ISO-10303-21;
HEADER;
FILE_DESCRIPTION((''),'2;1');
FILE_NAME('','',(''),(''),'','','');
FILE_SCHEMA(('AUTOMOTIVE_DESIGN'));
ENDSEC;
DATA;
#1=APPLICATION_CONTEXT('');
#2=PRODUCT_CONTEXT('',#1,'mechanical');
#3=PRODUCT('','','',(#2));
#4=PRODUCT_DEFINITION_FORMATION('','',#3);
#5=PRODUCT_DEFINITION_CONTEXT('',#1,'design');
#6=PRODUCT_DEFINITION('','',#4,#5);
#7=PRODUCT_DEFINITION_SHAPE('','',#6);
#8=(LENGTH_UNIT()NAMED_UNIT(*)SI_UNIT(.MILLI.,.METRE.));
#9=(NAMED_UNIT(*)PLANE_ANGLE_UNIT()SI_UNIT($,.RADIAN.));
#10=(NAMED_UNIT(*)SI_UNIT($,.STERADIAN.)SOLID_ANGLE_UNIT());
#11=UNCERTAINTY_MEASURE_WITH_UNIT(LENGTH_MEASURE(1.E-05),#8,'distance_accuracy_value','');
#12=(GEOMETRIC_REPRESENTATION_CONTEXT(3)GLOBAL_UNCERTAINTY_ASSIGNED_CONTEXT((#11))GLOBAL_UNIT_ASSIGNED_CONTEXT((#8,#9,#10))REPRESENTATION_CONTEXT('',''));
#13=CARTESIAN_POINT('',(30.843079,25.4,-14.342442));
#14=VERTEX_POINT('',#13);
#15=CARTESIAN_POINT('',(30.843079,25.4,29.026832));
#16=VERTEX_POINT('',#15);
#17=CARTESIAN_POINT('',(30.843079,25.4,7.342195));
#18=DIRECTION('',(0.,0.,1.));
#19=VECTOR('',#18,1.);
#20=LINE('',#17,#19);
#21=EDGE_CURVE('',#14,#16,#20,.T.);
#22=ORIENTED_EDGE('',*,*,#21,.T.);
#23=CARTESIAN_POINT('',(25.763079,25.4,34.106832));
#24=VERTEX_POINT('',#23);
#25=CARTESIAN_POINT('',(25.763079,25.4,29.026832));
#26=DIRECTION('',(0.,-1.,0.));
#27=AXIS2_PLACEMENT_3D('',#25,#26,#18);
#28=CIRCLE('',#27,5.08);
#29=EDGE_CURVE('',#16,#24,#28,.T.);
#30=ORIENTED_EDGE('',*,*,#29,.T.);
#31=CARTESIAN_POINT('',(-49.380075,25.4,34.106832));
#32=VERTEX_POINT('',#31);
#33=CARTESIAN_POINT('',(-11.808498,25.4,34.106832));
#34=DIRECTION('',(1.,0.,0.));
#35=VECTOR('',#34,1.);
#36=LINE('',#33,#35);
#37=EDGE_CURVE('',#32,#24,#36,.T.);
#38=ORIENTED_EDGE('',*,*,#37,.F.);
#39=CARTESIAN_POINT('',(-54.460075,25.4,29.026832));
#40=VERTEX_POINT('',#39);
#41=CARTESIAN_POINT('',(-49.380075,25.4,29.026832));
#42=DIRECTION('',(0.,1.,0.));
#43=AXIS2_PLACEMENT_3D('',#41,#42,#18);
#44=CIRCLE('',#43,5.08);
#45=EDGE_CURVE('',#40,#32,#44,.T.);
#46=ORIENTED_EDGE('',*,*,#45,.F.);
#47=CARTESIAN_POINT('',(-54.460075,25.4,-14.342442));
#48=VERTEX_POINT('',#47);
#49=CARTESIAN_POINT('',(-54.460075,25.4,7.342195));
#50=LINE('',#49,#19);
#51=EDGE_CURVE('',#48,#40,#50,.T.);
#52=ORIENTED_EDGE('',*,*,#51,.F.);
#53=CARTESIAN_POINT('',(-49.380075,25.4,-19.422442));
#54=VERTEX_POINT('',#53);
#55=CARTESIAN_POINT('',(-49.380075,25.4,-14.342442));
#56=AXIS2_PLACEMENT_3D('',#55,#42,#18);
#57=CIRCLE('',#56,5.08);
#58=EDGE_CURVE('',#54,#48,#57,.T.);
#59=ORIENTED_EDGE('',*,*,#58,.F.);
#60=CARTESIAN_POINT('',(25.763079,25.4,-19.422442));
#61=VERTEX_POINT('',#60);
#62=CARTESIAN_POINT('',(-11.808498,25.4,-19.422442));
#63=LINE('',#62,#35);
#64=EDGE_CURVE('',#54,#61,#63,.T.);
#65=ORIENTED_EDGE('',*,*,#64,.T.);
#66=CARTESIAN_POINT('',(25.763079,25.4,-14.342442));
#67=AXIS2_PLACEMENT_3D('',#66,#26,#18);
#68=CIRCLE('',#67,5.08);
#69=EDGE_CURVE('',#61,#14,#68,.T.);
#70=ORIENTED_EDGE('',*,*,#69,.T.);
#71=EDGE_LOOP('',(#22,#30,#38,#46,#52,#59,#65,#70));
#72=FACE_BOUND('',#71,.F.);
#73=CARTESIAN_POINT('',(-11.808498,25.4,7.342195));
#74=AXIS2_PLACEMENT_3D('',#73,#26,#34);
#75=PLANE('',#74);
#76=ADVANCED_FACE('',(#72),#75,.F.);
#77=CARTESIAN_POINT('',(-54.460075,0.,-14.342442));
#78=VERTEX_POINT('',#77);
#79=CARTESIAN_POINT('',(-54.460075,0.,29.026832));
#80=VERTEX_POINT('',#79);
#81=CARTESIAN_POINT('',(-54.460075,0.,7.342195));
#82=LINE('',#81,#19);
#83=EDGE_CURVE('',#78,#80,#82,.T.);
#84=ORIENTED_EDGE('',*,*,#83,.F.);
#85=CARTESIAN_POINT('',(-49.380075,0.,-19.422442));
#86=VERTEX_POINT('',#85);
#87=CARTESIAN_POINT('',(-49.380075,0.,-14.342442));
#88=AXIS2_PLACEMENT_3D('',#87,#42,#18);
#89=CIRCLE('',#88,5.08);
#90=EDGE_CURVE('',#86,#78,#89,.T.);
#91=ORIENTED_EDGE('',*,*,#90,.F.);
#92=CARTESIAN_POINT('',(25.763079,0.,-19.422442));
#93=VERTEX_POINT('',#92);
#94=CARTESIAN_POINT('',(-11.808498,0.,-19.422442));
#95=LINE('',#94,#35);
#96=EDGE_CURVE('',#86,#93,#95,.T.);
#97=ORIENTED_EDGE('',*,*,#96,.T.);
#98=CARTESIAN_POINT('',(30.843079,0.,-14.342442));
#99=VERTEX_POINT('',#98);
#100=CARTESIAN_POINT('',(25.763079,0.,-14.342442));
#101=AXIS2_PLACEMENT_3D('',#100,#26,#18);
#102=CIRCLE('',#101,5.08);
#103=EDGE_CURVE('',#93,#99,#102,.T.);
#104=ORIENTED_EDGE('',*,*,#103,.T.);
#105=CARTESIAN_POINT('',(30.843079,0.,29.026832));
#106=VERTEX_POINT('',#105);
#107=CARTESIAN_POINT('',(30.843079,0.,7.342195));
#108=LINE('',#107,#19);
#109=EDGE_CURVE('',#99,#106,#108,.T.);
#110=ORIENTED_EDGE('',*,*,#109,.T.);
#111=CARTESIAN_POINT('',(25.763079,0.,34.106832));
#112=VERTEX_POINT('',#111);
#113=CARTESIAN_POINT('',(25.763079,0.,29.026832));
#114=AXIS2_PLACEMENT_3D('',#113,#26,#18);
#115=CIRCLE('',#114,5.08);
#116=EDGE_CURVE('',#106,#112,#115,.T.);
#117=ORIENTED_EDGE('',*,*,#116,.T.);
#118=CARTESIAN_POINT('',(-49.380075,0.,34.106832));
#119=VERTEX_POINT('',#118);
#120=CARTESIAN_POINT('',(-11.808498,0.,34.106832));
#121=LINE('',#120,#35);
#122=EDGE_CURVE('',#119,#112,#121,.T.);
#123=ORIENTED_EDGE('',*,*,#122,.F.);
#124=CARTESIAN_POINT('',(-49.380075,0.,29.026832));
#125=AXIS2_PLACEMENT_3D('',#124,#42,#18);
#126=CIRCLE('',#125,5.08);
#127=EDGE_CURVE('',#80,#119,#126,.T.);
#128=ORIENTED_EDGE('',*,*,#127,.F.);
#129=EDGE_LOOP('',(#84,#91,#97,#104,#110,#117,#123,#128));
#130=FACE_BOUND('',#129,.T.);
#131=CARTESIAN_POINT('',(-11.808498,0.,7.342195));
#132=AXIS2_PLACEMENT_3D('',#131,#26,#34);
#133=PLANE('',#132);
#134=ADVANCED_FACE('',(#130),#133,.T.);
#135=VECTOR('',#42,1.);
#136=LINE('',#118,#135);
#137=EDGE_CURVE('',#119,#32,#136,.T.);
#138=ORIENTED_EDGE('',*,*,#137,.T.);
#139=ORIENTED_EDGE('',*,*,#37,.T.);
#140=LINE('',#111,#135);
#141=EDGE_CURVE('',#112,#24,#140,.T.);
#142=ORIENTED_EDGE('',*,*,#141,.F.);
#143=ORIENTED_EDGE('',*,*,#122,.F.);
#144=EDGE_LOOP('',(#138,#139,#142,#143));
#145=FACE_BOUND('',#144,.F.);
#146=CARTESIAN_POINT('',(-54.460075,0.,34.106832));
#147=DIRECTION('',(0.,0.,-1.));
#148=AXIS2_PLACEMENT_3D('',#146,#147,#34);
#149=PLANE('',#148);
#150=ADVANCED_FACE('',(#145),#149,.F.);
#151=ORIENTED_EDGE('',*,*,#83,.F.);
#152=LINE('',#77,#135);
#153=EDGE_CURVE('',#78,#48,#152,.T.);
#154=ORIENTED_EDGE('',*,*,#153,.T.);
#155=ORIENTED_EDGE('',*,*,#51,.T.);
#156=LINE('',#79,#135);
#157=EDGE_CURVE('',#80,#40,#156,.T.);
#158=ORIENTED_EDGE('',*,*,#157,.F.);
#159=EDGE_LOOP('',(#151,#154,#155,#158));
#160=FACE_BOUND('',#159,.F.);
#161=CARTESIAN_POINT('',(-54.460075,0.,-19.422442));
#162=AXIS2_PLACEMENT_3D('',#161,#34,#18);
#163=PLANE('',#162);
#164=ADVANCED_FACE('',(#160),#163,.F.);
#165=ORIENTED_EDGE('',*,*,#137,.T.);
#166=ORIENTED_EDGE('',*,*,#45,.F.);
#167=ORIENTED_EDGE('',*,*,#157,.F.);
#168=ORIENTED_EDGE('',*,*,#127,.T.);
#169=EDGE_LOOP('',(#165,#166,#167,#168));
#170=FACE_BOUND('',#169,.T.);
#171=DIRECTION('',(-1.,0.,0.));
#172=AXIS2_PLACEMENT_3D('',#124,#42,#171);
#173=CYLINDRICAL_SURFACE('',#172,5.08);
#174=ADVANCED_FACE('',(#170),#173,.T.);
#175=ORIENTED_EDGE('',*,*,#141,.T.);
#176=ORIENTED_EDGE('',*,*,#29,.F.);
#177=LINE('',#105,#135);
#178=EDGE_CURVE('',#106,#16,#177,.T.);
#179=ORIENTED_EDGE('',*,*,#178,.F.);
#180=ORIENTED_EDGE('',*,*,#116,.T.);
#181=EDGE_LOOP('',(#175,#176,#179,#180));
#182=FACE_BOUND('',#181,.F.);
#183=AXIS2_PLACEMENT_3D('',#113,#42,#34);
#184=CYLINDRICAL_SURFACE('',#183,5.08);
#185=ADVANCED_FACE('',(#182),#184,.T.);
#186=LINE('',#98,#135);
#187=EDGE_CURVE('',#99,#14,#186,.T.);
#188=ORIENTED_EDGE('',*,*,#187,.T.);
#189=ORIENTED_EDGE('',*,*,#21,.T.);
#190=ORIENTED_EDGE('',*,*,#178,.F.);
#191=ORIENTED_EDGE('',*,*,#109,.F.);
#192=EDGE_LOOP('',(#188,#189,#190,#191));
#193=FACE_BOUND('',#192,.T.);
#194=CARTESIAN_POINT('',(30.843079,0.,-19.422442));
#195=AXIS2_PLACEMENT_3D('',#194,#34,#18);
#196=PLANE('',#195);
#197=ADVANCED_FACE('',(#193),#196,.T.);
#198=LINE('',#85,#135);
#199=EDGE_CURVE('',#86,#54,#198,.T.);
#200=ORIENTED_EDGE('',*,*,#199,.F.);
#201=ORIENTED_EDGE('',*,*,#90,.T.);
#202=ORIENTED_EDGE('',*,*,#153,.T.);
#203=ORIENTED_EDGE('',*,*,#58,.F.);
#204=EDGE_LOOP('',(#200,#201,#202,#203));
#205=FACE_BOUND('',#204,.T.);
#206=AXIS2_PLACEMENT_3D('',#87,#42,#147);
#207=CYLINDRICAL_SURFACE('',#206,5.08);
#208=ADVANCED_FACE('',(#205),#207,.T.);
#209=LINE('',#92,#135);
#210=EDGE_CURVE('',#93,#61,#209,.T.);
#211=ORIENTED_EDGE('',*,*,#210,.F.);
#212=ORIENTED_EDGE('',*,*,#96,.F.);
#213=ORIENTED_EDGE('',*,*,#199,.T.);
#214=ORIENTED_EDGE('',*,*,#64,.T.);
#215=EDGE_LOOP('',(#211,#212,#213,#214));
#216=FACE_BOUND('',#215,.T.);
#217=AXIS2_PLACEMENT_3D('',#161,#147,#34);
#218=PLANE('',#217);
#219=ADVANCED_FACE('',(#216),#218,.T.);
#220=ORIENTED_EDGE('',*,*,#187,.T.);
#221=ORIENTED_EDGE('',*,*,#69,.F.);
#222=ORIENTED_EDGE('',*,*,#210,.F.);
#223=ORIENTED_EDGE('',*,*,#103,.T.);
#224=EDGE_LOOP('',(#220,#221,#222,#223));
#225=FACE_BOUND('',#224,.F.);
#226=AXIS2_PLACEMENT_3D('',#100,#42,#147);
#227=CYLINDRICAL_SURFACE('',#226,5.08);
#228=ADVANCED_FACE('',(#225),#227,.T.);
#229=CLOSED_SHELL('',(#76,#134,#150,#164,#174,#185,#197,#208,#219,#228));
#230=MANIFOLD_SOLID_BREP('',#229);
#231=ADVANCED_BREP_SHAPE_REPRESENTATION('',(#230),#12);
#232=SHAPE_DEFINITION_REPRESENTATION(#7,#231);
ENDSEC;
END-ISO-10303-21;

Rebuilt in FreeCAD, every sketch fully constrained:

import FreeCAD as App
import Part
import Sketcher

V = App.Vector
Q = App.Units.Quantity


def edges_at(feature, points):
    """Names of the edges that pass closest to the given points."""
    edges = feature.Shape.Edges
    near = lambda p: min(range(len(edges)), key=lambda i: edges[i].distToShape(Part.Vertex(*p))[0])
    return sorted({f"Edge{near(p) + 1}" for p in points})


def add_polygon(sketch, points):
    """Adds a closed chain of lines whose ends are joined by coincident constraints."""
    first, n = sketch.GeometryCount, len(points)
    for a, b in zip(points, points[1:] + points[:1]):
        sketch.addGeometry(Part.LineSegment(App.Vector(*a, 0), App.Vector(*b, 0)), False)
    for i in range(n):
        sketch.addConstraint(Sketcher.Constraint("Coincident", first + i, 2, first + (i + 1) % n, 1))

doc = App.newDocument("Part")
params = doc.addObject("Spreadsheet::Sheet", "Params")
for row, (alias, value) in enumerate([
    ("pad1_length", "1 in"),
    ("fillet_radius", "0.2 in"),
    ("fillet2_radius", "0.2 in"),
    ("sketch2_width", "2 in"),
    ("revolution_angle", "15 deg"),
    ("sketch3_width", "2 in"),
    ("revolution2_angle", "15 deg"),
], start=1):
    params.set(f"A{row}", alias)
    params.set(f"B{row}", "=" + value)
    params.setAlias(f"B{row}", alias)

body = doc.addObject("PartDesign::Body", "Body")

sketch1 = doc.addObject("Sketcher::SketchObject", "Sketch")
body.addObject(sketch1)
sketch1.AttachmentSupport = (doc.XZ_Plane, [""])
sketch1.MapMode = "FlatFace"
add_polygon(sketch1, [(-54, 34), (-54, -19), (31, -19), (31, 34)])
sketch1.addConstraint(Sketcher.Constraint("Vertical", 0))
sketch1.addConstraint(Sketcher.Constraint("Horizontal", 1))
sketch1.addConstraint(Sketcher.Constraint("Vertical", 2))
sketch1.addConstraint(Sketcher.Constraint("Horizontal", 3))
sketch1.addConstraint(Sketcher.Constraint("DistanceX", 1, 1, 1, 2, Q("85.303154 mm")))
sketch1.addConstraint(Sketcher.Constraint("DistanceY", 0, 2, 0, 1, Q("53.529274 mm")))
sketch1.addConstraint(Sketcher.Constraint("DistanceY", 0, 2, -1, 1, Q("19.422442 mm")))
sketch1.addConstraint(Sketcher.Constraint("DistanceX", -1, 1, 1, 2, Q("30.843079 mm")))
pad1 = doc.addObject("PartDesign::Pad", "Pad")
body.addObject(pad1)
pad1.Profile = sketch1
pad1.setExpression("Length", "Params.pad1_length")
pad1.Reversed = True
doc.recompute()

fillet = doc.addObject("PartDesign::Fillet", "Fillet")
body.addObject(fillet)
fillet.Base = (pad1, edges_at(pad1, [(30.843, 12.7, 34.107), (30.843, 12.7, -19.422)]))
fillet.setExpression("Radius", "Params.fillet_radius")
doc.recompute()

fillet2 = doc.addObject("PartDesign::Fillet", "Fillet001")
body.addObject(fillet2)
fillet2.Base = (fillet, edges_at(fillet, [(-54.46, 12.7, 34.107), (-54.46, 12.7, -19.422)]))
fillet2.setExpression("Radius", "Params.fillet2_radius")
body2 = doc.addObject("PartDesign::Body", "Body001")

sketch2 = doc.addObject("Sketcher::SketchObject", "Sketch001")
body2.addObject(sketch2)
sketch2.AttachmentSupport = (doc.getObject("XY_Plane001"), [""])
sketch2.MapMode = "FlatFace"
add_polygon(sketch2, [(-113, -5), (-113, -56), (-62, -56), (-62, -5)])
sketch2.addGeometry(Part.LineSegment(V(-62, -56, 0), V(-62, -5, 0)), True)
sketch2.addConstraint(Sketcher.Constraint("Vertical", 0))
sketch2.addConstraint(Sketcher.Constraint("Horizontal", 1))
sketch2.addConstraint(Sketcher.Constraint("Vertical", 2))
sketch2.addConstraint(Sketcher.Constraint("Horizontal", 3))
sketch2.addConstraint(Sketcher.Constraint("Vertical", 4))
sketch2.addConstraint(Sketcher.Constraint("Coincident", 4, 1, 1, 2))
sketch2.addConstraint(Sketcher.Constraint("Horizontal", 3, 2, 4, 2))
sketch2.addConstraint(Sketcher.Constraint("Equal", 3, 0))
sketch2.addConstraint(Sketcher.Constraint("DistanceX", 1, 1, 1, 2, Q("2 in")))
sketch2.addConstraint(Sketcher.Constraint("DistanceX", 0, 2, -1, 1, Q("112.564474 mm")))
sketch2.addConstraint(Sketcher.Constraint("DistanceY", 0, 2, -1, 1, Q("55.615205 mm")))
sketch2.setExpression("Constraints[12]", "Params.sketch2_width")
revolution = doc.addObject("PartDesign::Revolution", "Revolution")
body2.addObject(revolution)
revolution.Profile = sketch2
revolution.ReferenceAxis = (sketch2, ["Axis0"])
revolution.setExpression("Angle", "Params.revolution_angle")

sketch3 = doc.addObject("Sketcher::SketchObject", "Sketch002")
body2.addObject(sketch3)
sketch3.AttachmentSupport = (doc.getObject("XY_Plane001"), [""])
sketch3.MapMode = "FlatFace"
add_polygon(sketch3, [(-113, -5), (-113, -56), (-62, -56), (-62, -5)])
sketch3.addGeometry(Part.LineSegment(V(-62, -5, 0), V(-62, -56, 0)), True)
sketch3.addConstraint(Sketcher.Constraint("Vertical", 0))
sketch3.addConstraint(Sketcher.Constraint("Horizontal", 1))
sketch3.addConstraint(Sketcher.Constraint("Vertical", 2))
sketch3.addConstraint(Sketcher.Constraint("Horizontal", 3))
sketch3.addConstraint(Sketcher.Constraint("Vertical", 4))
sketch3.addConstraint(Sketcher.Constraint("Coincident", 4, 1, 2, 2))
sketch3.addConstraint(Sketcher.Constraint("Horizontal", 0, 2, 4, 2))
sketch3.addConstraint(Sketcher.Constraint("Equal", 3, 0))
sketch3.addConstraint(Sketcher.Constraint("DistanceX", 1, 1, 1, 2, Q("2 in")))
sketch3.addConstraint(Sketcher.Constraint("DistanceX", 0, 2, -1, 1, Q("112.564474 mm")))
sketch3.addConstraint(Sketcher.Constraint("DistanceY", 0, 2, -1, 1, Q("55.615205 mm")))
sketch3.setExpression("Constraints[12]", "Params.sketch3_width")
revolution2 = doc.addObject("PartDesign::Revolution", "Revolution001")
body2.addObject(revolution2)
revolution2.Profile = sketch3
revolution2.ReferenceAxis = (sketch3, ["Axis0"])
revolution2.setExpression("Angle", "Params.revolution2_angle")
body2.Visibility = False

doc.recompute()
